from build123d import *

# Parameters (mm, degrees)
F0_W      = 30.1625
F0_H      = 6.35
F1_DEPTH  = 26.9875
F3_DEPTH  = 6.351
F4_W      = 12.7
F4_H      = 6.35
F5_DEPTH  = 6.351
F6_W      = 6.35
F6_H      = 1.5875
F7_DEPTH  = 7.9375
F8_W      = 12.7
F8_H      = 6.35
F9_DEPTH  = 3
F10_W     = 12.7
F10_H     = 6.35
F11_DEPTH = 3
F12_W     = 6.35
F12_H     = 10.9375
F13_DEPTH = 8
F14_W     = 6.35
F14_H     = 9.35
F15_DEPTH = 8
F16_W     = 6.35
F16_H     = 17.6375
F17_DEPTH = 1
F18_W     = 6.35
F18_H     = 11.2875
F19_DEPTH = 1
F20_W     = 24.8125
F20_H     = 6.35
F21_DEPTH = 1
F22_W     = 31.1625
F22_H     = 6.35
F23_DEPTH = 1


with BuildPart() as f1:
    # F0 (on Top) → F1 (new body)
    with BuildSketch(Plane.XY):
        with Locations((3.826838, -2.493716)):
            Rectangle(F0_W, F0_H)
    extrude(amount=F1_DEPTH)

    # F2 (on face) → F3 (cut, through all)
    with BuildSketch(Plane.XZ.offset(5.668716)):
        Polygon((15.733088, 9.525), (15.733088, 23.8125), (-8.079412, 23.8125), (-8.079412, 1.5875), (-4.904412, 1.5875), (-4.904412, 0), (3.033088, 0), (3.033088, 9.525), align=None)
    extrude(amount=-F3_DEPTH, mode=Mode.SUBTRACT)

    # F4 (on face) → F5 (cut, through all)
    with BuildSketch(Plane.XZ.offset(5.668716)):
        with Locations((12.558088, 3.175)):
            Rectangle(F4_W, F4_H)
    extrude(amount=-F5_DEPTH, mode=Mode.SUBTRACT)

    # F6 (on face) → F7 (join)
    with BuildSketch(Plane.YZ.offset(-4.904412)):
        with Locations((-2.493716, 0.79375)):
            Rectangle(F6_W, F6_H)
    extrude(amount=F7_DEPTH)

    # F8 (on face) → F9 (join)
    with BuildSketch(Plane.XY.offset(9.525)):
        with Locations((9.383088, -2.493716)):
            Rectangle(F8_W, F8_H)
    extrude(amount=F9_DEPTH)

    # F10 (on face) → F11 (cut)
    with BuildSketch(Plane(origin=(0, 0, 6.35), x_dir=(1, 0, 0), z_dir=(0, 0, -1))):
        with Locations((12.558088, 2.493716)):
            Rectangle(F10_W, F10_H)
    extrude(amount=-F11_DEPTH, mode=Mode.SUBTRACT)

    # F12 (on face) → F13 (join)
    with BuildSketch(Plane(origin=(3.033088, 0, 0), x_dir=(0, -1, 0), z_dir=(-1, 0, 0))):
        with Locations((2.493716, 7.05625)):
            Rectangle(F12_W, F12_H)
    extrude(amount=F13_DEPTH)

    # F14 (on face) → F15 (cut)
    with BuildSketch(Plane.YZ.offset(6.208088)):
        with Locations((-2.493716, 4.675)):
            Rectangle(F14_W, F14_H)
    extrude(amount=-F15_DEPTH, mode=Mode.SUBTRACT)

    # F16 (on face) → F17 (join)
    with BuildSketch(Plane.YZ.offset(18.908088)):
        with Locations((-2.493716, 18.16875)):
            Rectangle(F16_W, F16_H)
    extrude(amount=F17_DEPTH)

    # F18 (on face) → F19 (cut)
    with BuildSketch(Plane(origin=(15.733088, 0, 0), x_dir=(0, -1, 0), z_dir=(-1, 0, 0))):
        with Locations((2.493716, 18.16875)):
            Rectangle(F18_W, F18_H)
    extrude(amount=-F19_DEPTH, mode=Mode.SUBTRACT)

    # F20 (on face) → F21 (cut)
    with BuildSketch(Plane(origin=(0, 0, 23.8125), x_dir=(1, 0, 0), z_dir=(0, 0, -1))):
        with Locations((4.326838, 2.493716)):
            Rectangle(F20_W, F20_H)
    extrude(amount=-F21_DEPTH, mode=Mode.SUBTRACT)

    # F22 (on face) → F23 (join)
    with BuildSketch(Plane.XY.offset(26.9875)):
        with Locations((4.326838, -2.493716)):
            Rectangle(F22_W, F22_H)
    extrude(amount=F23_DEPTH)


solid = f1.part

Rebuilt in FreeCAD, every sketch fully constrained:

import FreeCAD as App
import Part
import Sketcher
Q = App.Units.Quantity


def add_polygon(sketch, points):
    """Adds a closed chain of lines whose ends are joined by coincident constraints."""
    first, n = sketch.GeometryCount, len(points)
    for a, b in zip(points, points[1:] + points[:1]):
        sketch.addGeometry(Part.LineSegment(App.Vector(*a, 0), App.Vector(*b, 0)), False)
    for i in range(n):
        sketch.addConstraint(Sketcher.Constraint("Coincident", first + i, 2, first + (i + 1) % n, 1))

doc = App.newDocument("Part")
params = doc.addObject("Spreadsheet::Sheet", "Params")
for row, (alias, value) in enumerate([
    ("sketch1_height", "0.25 in"),
    ("sketch1_width", "1.1875 in"),
    ("pad1_length", "1.0625 in"),
    ("sketch2_width", "0.5 in"),
    ("sketch2_width2", "0.9375 in"),
    ("sketch2_width3", "0.125 in"),
    ("sketch2_height", "0.5625 in"),
    ("sketch2_height2", "0.875 in"),
    ("sketch3_width", "0.5 in"),
    ("sketch3_height", "0.25 in"),
    ("sketch4_width", "0.25 in"),
    ("sketch4_height", "0.0625 in"),
    ("pad2_length", "0.3125 in"),
    ("sketch5_width", "0.5 in"),
    ("sketch5_height", "0.25 in"),
    ("pad3_length", "3 mm"),
    ("sketch6_width", "0.5 in"),
    ("sketch6_height", "0.25 in"),
    ("pocket3_length", "3 mm"),
    ("sketch7_width", "0.25 in"),
    ("pad4_length", "8 mm"),
    ("sketch8_width", "0.25 in"),
    ("pocket4_length", "8 mm"),
    ("sketch9_width", "0.25 in"),
    ("pad5_length", "1 mm"),
    ("sketch10_width", "0.25 in"),
    ("pocket5_length", "1 mm"),
    ("sketch11_height", "0.25 in"),
    ("pocket6_length", "1 mm"),
    ("sketch12_height", "0.25 in"),
    ("pad6_length", "1 mm"),
], start=1):
    params.set(f"A{row}", alias)
    params.set(f"B{row}", "=" + value)
    params.setAlias(f"B{row}", alias)

body = doc.addObject("PartDesign::Body", "Body")

sketch1 = body.newObject("Sketcher::SketchObject", "Sketch")
sketch1.AttachmentSupport = (doc.getObject("XY_Plane"), [""])
sketch1.MapMode = "FlatFace"
add_polygon(sketch1, [(-11.254412, 0.681284), (-11.254412, -5.668716), (18.908088, -5.668716), (18.908088, 0.681284)])
sketch1.addConstraint(Sketcher.Constraint("Vertical", 0))
sketch1.addConstraint(Sketcher.Constraint("Horizontal", 1))
sketch1.addConstraint(Sketcher.Constraint("Vertical", 2))
sketch1.addConstraint(Sketcher.Constraint("Horizontal", 3))
sketch1.addConstraint(Sketcher.Constraint("DistanceY", 0, 2, 0, 1, Q("0.25 in")))
sketch1.addConstraint(Sketcher.Constraint("DistanceX", 1, 1, 1, 2, Q("1.1875 in")))
sketch1.addConstraint(Sketcher.Constraint("DistanceX", 0, 2, -1, 1, 11.254412))
sketch1.addConstraint(Sketcher.Constraint("DistanceY", 0, 2, -1, 1, 5.668716))
sketch1.setExpression("Constraints[8]", "Params.sketch1_height")
sketch1.setExpression("Constraints[9]", "Params.sketch1_width")
pad1 = body.newObject("PartDesign::Pad", "Pad")
pad1.Profile = sketch1
pad1.setExpression("Length", "Params.pad1_length")

sketch2 = body.newObject("Sketcher::SketchObject", "Sketch001")
sketch2.AttachmentSupport = (doc.getObject("XZ_Plane"), [""])
sketch2.MapMode = "FlatFace"
sketch2.AttachmentOffset = App.Placement(App.Vector(0, 0, 5.668716), App.Rotation())
add_polygon(sketch2, [(15.733088, 9.525), (15.733088, 23.8125), (-8.079412, 23.8125), (-8.079412, 1.5875), (-4.904412, 1.5875), (-4.904412, 0), (3.033088, 0), (3.033088, 9.525)])
sketch2.addConstraint(Sketcher.Constraint("Vertical", 0))
sketch2.addConstraint(Sketcher.Constraint("Horizontal", 1))
sketch2.addConstraint(Sketcher.Constraint("Vertical", 2))
sketch2.addConstraint(Sketcher.Constraint("Horizontal", 3))
sketch2.addConstraint(Sketcher.Constraint("Vertical", 4))
sketch2.addConstraint(Sketcher.Constraint("Horizontal", 5))
sketch2.addConstraint(Sketcher.Constraint("Vertical", 6))
sketch2.addConstraint(Sketcher.Constraint("Horizontal", 7))
sketch2.addConstraint(Sketcher.Constraint("PointOnObject", 4, 2, -1))
sketch2.addConstraint(Sketcher.Constraint("DistanceX", 7, 1, 7, 2, Q("0.5 in")))
sketch2.addConstraint(Sketcher.Constraint("DistanceX", 1, 2, 1, 1, Q("0.9375 in")))
sketch2.addConstraint(Sketcher.Constraint("DistanceX", 3, 1, 3, 2, Q("0.125 in")))
sketch2.addConstraint(Sketcher.Constraint("DistanceY", 0, 1, 0, 2, Q("0.5625 in")))
sketch2.addConstraint(Sketcher.Constraint("DistanceY", 2, 2, 2, 1, Q("0.875 in")))
sketch2.addConstraint(Sketcher.Constraint("DistanceY", 4, 2, 4, 1, Q("0.0625 in")))
sketch2.addConstraint(Sketcher.Constraint("DistanceX", 3, 2, -1, 1, 4.904412))
sketch2.setExpression("Constraints[17]", "Params.sketch2_width")
sketch2.setExpression("Constraints[18]", "Params.sketch2_width2")
sketch2.setExpression("Constraints[19]", "Params.sketch2_width3")
sketch2.setExpression("Constraints[20]", "Params.sketch2_height")
sketch2.setExpression("Constraints[21]", "Params.sketch2_height2")
pocket1 = body.newObject("PartDesign::Pocket", "Pocket")
pocket1.Profile = sketch2
pocket1.Type = "ThroughAll"

sketch3 = body.newObject("Sketcher::SketchObject", "Sketch002")
sketch3.AttachmentSupport = (doc.getObject("XZ_Plane"), [""])
sketch3.MapMode = "FlatFace"
sketch3.AttachmentOffset = App.Placement(App.Vector(0, 0, 5.668716), App.Rotation())
add_polygon(sketch3, [(6.208088, 6.35), (6.208088, 0), (18.908088, 0), (18.908088, 6.35)])
sketch3.addConstraint(Sketcher.Constraint("Vertical", 0))
sketch3.addConstraint(Sketcher.Constraint("Horizontal", 1))
sketch3.addConstraint(Sketcher.Constraint("Vertical", 2))
sketch3.addConstraint(Sketcher.Constraint("Horizontal", 3))
sketch3.addConstraint(Sketcher.Constraint("PointOnObject", 0, 2, -1))
sketch3.addConstraint(Sketcher.Constraint("DistanceX", 1, 1, 1, 2, Q("0.5 in")))
sketch3.addConstraint(Sketcher.Constraint("DistanceY", 0, 2, 0, 1, Q("0.25 in")))
sketch3.addConstraint(Sketcher.Constraint("DistanceX", -1, 1, 0, 2, 6.208088))
sketch3.setExpression("Constraints[9]", "Params.sketch3_width")
sketch3.setExpression("Constraints[10]", "Params.sketch3_height")
pocket2 = body.newObject("PartDesign::Pocket", "Pocket001")
pocket2.Profile = sketch3
pocket2.Type = "ThroughAll"

sketch4 = body.newObject("Sketcher::SketchObject", "Sketch003")
sketch4.AttachmentSupport = (doc.getObject("YZ_Plane"), [""])
sketch4.MapMode = "FlatFace"
sketch4.AttachmentOffset = App.Placement(App.Vector(0, 0, -4.904412), App.Rotation())
add_polygon(sketch4, [(-5.668716, 1.5875), (-5.668716, 0), (0.681284, 0), (0.681284, 1.5875)])
sketch4.addConstraint(Sketcher.Constraint("Vertical", 0))
sketch4.addConstraint(Sketcher.Constraint("Horizontal", 1))
sketch4.addConstraint(Sketcher.Constraint("Vertical", 2))
sketch4.addConstraint(Sketcher.Constraint("Horizontal", 3))
sketch4.addConstraint(Sketcher.Constraint("PointOnObject", 0, 2, -1))
sketch4.addConstraint(Sketcher.Constraint("DistanceX", 1, 1, 1, 2, Q("0.25 in")))
sketch4.addConstraint(Sketcher.Constraint("DistanceY", 0, 2, 0, 1, Q("0.0625 in")))
sketch4.addConstraint(Sketcher.Constraint("DistanceX", 0, 2, -1, 1, 5.668716))
sketch4.setExpression("Constraints[9]", "Params.sketch4_width")
sketch4.setExpression("Constraints[10]", "Params.sketch4_height")
pad2 = body.newObject("PartDesign::Pad", "Pad001")
pad2.Profile = sketch4
pad2.setExpression("Length", "Params.pad2_length")

sketch5 = body.newObject("Sketcher::SketchObject", "Sketch004")
sketch5.AttachmentSupport = (doc.getObject("XY_Plane"), [""])
sketch5.MapMode = "FlatFace"
sketch5.AttachmentOffset = App.Placement(App.Vector(0, 0, 0.375 * 25.4), App.Rotation())
add_polygon(sketch5, [(3.033088, 0.681284), (3.033088, -5.668716), (15.733088, -5.668716), (15.733088, 0.681284)])
sketch5.addConstraint(Sketcher.Constraint("Vertical", 0))
sketch5.addConstraint(Sketcher.Constraint("Horizontal", 1))
sketch5.addConstraint(Sketcher.Constraint("Vertical", 2))
sketch5.addConstraint(Sketcher.Constraint("Horizontal", 3))
sketch5.addConstraint(Sketcher.Constraint("DistanceX", 1, 1, 1, 2, Q("0.5 in")))
sketch5.addConstraint(Sketcher.Constraint("DistanceY", 0, 2, 0, 1, Q("0.25 in")))
sketch5.addConstraint(Sketcher.Constraint("DistanceX", -1, 1, 0, 2, 3.033088))
sketch5.addConstraint(Sketcher.Constraint("DistanceY", 0, 2, -1, 1, 5.668716))
sketch5.setExpression("Constraints[8]", "Params.sketch5_width")
sketch5.setExpression("Constraints[9]", "Params.sketch5_height")
pad3 = body.newObject("PartDesign::Pad", "Pad002")
pad3.Profile = sketch5
pad3.setExpression("Length", "Params.pad3_length")

sketch6 = body.newObject("Sketcher::SketchObject", "Sketch005")
sketch6.AttachmentSupport = (doc.getObject("XY_Plane"), [""])
sketch6.MapMode = "FlatFace"
sketch6.AttachmentOffset = App.Placement(App.Vector(0, 0, 0.25 * 25.4), App.Rotation())
add_polygon(sketch6, [(6.208088, -5.668716), (6.208088, 0.681284), (18.908088, 0.681284), (18.908088, -5.668716)])
sketch6.addConstraint(Sketcher.Constraint("Vertical", 0))
sketch6.addConstraint(Sketcher.Constraint("Horizontal", 1))
sketch6.addConstraint(Sketcher.Constraint("Vertical", 2))
sketch6.addConstraint(Sketcher.Constraint("Horizontal", 3))
sketch6.addConstraint(Sketcher.Constraint("DistanceX", 1, 1, 1, 2, Q("0.5 in")))
sketch6.addConstraint(Sketcher.Constraint("DistanceY", 0, 1, 0, 2, Q("0.25 in")))
sketch6.addConstraint(Sketcher.Constraint("DistanceX", -1, 1, 0, 2, 6.208088))
sketch6.addConstraint(Sketcher.Constraint("DistanceY", -1, 1, 0, 2, 0.681284))
sketch6.setExpression("Constraints[8]", "Params.sketch6_width")
sketch6.setExpression("Constraints[9]", "Params.sketch6_height")
pocket3 = body.newObject("PartDesign::Pocket", "Pocket002")
pocket3.Profile = sketch6
pocket3.setExpression("Length", "Params.pocket3_length")
pocket3.Reversed = True

sketch7 = body.newObject("Sketcher::SketchObject", "Sketch006")
sketch7.AttachmentSupport = (doc.getObject("YZ_Plane"), [""])
sketch7.MapMode = "FlatFace"
sketch7.AttachmentOffset = App.Placement(App.Vector(0, 0, 3.033088), App.Rotation())
add_polygon(sketch7, [(0.681284, 12.525), (0.681284, 1.5875), (-5.668716, 1.5875), (-5.668716, 12.525)])
sketch7.addConstraint(Sketcher.Constraint("Vertical", 0))
sketch7.addConstraint(Sketcher.Constraint("Horizontal", 1))
sketch7.addConstraint(Sketcher.Constraint("Vertical", 2))
sketch7.addConstraint(Sketcher.Constraint("Horizontal", 3))
sketch7.addConstraint(Sketcher.Constraint("DistanceX", 1, 2, 1, 1, Q("0.25 in")))
sketch7.addConstraint(Sketcher.Constraint("DistanceY", -1, 1, 0, 2, Q("0.0625 in")))
sketch7.addConstraint(Sketcher.Constraint("DistanceY", 0, 2, 0, 1, 10.9375))
sketch7.addConstraint(Sketcher.Constraint("DistanceX", -1, 1, 0, 2, 0.681284))
sketch7.setExpression("Constraints[8]", "Params.sketch7_width")
pad4 = body.newObject("PartDesign::Pad", "Pad003")
pad4.Profile = sketch7
pad4.setExpression("Length", "Params.pad4_length")
pad4.Reversed = True

sketch8 = body.newObject("Sketcher::SketchObject", "Sketch007")
sketch8.AttachmentSupport = (doc.getObject("YZ_Plane"), [""])
sketch8.MapMode = "FlatFace"
sketch8.AttachmentOffset = App.Placement(App.Vector(0, 0, 6.208088), App.Rotation())
add_polygon(sketch8, [(-5.668716, 9.35), (-5.668716, 0), (0.681284, 0), (0.681284, 9.35)])
sketch8.addConstraint(Sketcher.Constraint("Vertical", 0))
sketch8.addConstraint(Sketcher.Constraint("Horizontal", 1))
sketch8.addConstraint(Sketcher.Constraint("Vertical", 2))
sketch8.addConstraint(Sketcher.Constraint("Horizontal", 3))
sketch8.addConstraint(Sketcher.Constraint("PointOnObject", 0, 2, -1))
sketch8.addConstraint(Sketcher.Constraint("DistanceX", 1, 1, 1, 2, Q("0.25 in")))
sketch8.addConstraint(Sketcher.Constraint("DistanceY", 0, 2, 0, 1, 9.35))
sketch8.addConstraint(Sketcher.Constraint("DistanceX", 0, 2, -1, 1, 5.668716))
sketch8.setExpression("Constraints[9]", "Params.sketch8_width")
pocket4 = body.newObject("PartDesign::Pocket", "Pocket003")
pocket4.Profile = sketch8
pocket4.setExpression("Length", "Params.pocket4_length")

sketch9 = body.newObject("Sketcher::SketchObject", "Sketch008")
sketch9.AttachmentSupport = (doc.getObject("YZ_Plane"), [""])
sketch9.MapMode = "FlatFace"
sketch9.AttachmentOffset = App.Placement(App.Vector(0, 0, 18.908088), App.Rotation())
add_polygon(sketch9, [(-5.668716, 26.9875), (-5.668716, 9.35), (0.681284, 9.35), (0.681284, 26.9875)])
sketch9.addConstraint(Sketcher.Constraint("Vertical", 0))
sketch9.addConstraint(Sketcher.Constraint("Horizontal", 1))
sketch9.addConstraint(Sketcher.Constraint("Vertical", 2))
sketch9.addConstraint(Sketcher.Constraint("Horizontal", 3))
sketch9.addConstraint(Sketcher.Constraint("DistanceX", 1, 1, 1, 2, Q("0.25 in")))
sketch9.addConstraint(Sketcher.Constraint("DistanceY", -1, 1, 2, 2, Q("1.0625 in")))
sketch9.addConstraint(Sketcher.Constraint("DistanceY", 0, 2, 0, 1, 17.6375))
sketch9.addConstraint(Sketcher.Constraint("DistanceX", 0, 2, -1, 1, 5.668716))
sketch9.setExpression("Constraints[8]", "Params.sketch9_width")
pad5 = body.newObject("PartDesign::Pad", "Pad004")
pad5.Profile = sketch9
pad5.setExpression("Length", "Params.pad5_length")

sketch10 = body.newObject("Sketcher::SketchObject", "Sketch009")
sketch10.AttachmentSupport = (doc.getObject("YZ_Plane"), [""])
sketch10.MapMode = "FlatFace"
sketch10.AttachmentOffset = App.Placement(App.Vector(0, 0, 15.733088), App.Rotation())
add_polygon(sketch10, [(0.681284, 23.8125), (0.681284, 12.525), (-5.668716, 12.525), (-5.668716, 23.8125)])
sketch10.addConstraint(Sketcher.Constraint("Vertical", 0))
sketch10.addConstraint(Sketcher.Constraint("Horizontal", 1))
sketch10.addConstraint(Sketcher.Constraint("Vertical", 2))
sketch10.addConstraint(Sketcher.Constraint("Horizontal", 3))
sketch10.addConstraint(Sketcher.Constraint("DistanceX", 1, 2, 1, 1, Q("0.25 in")))
sketch10.addConstraint(Sketcher.Constraint("DistanceY", -1, 1, 2, 2, Q("0.9375 in")))
sketch10.addConstraint(Sketcher.Constraint("DistanceY", 0, 2, 0, 1, 11.2875))
sketch10.addConstraint(Sketcher.Constraint("DistanceX", -1, 1, 0, 2, 0.681284))
sketch10.setExpression("Constraints[8]", "Params.sketch10_width")
pocket5 = body.newObject("PartDesign::Pocket", "Pocket004")
pocket5.Profile = sketch10
pocket5.setExpression("Length", "Params.pocket5_length")
pocket5.Reversed = True

sketch11 = body.newObject("Sketcher::SketchObject", "Sketch010")
sketch11.AttachmentSupport = (doc.getObject("XY_Plane"), [""])
sketch11.MapMode = "FlatFace"
sketch11.AttachmentOffset = App.Placement(App.Vector(0, 0, 0.9375 * 25.4), App.Rotation())
add_polygon(sketch11, [(-8.079412, -5.668716), (-8.079412, 0.681284), (16.733088, 0.681284), (16.733088, -5.668716)])
sketch11.addConstraint(Sketcher.Constraint("Vertical", 0))
sketch11.addConstraint(Sketcher.Constraint("Horizontal", 1))
sketch11.addConstraint(Sketcher.Constraint("Vertical", 2))
sketch11.addConstraint(Sketcher.Constraint("Horizontal", 3))
sketch11.addConstraint(Sketcher.Constraint("DistanceY", 0, 1, 0, 2, Q("0.25 in")))
sketch11.addConstraint(Sketcher.Constraint("DistanceX", 1, 1, 1, 2, 24.8125))
sketch11.addConstraint(Sketcher.Constraint("DistanceX", 0, 2, -1, 1, 8.079412))
sketch11.addConstraint(Sketcher.Constraint("DistanceY", -1, 1, 0, 2, 0.681284))
sketch11.setExpression("Constraints[8]", "Params.sketch11_height")
pocket6 = body.newObject("PartDesign::Pocket", "Pocket005")
pocket6.Profile = sketch11
pocket6.setExpression("Length", "Params.pocket6_length")
pocket6.Reversed = True

sketch12 = body.newObject("Sketcher::SketchObject", "Sketch011")
sketch12.AttachmentSupport = (doc.getObject("XY_Plane"), [""])
sketch12.MapMode = "FlatFace"
sketch12.AttachmentOffset = App.Placement(App.Vector(0, 0, 1.0625 * 25.4), App.Rotation())
add_polygon(sketch12, [(-11.254412, 0.681284), (-11.254412, -5.668716), (19.908088, -5.668716), (19.908088, 0.681284)])
sketch12.addConstraint(Sketcher.Constraint("Vertical", 0))
sketch12.addConstraint(Sketcher.Constraint("Horizontal", 1))
sketch12.addConstraint(Sketcher.Constraint("Vertical", 2))
sketch12.addConstraint(Sketcher.Constraint("Horizontal", 3))
sketch12.addConstraint(Sketcher.Constraint("DistanceY", 0, 2, 0, 1, Q("0.25 in")))
sketch12.addConstraint(Sketcher.Constraint("DistanceX", 1, 1, 1, 2, 31.1625))
sketch12.addConstraint(Sketcher.Constraint("DistanceX", 0, 2, -1, 1, 11.254412))
sketch12.addConstraint(Sketcher.Constraint("DistanceY", 0, 2, -1, 1, 5.668716))
sketch12.setExpression("Constraints[8]", "Params.sketch12_height")
pad6 = body.newObject("PartDesign::Pad", "Pad005")
pad6.Profile = sketch12
pad6.setExpression("Length", "Params.pad6_length")

doc.recompute()
